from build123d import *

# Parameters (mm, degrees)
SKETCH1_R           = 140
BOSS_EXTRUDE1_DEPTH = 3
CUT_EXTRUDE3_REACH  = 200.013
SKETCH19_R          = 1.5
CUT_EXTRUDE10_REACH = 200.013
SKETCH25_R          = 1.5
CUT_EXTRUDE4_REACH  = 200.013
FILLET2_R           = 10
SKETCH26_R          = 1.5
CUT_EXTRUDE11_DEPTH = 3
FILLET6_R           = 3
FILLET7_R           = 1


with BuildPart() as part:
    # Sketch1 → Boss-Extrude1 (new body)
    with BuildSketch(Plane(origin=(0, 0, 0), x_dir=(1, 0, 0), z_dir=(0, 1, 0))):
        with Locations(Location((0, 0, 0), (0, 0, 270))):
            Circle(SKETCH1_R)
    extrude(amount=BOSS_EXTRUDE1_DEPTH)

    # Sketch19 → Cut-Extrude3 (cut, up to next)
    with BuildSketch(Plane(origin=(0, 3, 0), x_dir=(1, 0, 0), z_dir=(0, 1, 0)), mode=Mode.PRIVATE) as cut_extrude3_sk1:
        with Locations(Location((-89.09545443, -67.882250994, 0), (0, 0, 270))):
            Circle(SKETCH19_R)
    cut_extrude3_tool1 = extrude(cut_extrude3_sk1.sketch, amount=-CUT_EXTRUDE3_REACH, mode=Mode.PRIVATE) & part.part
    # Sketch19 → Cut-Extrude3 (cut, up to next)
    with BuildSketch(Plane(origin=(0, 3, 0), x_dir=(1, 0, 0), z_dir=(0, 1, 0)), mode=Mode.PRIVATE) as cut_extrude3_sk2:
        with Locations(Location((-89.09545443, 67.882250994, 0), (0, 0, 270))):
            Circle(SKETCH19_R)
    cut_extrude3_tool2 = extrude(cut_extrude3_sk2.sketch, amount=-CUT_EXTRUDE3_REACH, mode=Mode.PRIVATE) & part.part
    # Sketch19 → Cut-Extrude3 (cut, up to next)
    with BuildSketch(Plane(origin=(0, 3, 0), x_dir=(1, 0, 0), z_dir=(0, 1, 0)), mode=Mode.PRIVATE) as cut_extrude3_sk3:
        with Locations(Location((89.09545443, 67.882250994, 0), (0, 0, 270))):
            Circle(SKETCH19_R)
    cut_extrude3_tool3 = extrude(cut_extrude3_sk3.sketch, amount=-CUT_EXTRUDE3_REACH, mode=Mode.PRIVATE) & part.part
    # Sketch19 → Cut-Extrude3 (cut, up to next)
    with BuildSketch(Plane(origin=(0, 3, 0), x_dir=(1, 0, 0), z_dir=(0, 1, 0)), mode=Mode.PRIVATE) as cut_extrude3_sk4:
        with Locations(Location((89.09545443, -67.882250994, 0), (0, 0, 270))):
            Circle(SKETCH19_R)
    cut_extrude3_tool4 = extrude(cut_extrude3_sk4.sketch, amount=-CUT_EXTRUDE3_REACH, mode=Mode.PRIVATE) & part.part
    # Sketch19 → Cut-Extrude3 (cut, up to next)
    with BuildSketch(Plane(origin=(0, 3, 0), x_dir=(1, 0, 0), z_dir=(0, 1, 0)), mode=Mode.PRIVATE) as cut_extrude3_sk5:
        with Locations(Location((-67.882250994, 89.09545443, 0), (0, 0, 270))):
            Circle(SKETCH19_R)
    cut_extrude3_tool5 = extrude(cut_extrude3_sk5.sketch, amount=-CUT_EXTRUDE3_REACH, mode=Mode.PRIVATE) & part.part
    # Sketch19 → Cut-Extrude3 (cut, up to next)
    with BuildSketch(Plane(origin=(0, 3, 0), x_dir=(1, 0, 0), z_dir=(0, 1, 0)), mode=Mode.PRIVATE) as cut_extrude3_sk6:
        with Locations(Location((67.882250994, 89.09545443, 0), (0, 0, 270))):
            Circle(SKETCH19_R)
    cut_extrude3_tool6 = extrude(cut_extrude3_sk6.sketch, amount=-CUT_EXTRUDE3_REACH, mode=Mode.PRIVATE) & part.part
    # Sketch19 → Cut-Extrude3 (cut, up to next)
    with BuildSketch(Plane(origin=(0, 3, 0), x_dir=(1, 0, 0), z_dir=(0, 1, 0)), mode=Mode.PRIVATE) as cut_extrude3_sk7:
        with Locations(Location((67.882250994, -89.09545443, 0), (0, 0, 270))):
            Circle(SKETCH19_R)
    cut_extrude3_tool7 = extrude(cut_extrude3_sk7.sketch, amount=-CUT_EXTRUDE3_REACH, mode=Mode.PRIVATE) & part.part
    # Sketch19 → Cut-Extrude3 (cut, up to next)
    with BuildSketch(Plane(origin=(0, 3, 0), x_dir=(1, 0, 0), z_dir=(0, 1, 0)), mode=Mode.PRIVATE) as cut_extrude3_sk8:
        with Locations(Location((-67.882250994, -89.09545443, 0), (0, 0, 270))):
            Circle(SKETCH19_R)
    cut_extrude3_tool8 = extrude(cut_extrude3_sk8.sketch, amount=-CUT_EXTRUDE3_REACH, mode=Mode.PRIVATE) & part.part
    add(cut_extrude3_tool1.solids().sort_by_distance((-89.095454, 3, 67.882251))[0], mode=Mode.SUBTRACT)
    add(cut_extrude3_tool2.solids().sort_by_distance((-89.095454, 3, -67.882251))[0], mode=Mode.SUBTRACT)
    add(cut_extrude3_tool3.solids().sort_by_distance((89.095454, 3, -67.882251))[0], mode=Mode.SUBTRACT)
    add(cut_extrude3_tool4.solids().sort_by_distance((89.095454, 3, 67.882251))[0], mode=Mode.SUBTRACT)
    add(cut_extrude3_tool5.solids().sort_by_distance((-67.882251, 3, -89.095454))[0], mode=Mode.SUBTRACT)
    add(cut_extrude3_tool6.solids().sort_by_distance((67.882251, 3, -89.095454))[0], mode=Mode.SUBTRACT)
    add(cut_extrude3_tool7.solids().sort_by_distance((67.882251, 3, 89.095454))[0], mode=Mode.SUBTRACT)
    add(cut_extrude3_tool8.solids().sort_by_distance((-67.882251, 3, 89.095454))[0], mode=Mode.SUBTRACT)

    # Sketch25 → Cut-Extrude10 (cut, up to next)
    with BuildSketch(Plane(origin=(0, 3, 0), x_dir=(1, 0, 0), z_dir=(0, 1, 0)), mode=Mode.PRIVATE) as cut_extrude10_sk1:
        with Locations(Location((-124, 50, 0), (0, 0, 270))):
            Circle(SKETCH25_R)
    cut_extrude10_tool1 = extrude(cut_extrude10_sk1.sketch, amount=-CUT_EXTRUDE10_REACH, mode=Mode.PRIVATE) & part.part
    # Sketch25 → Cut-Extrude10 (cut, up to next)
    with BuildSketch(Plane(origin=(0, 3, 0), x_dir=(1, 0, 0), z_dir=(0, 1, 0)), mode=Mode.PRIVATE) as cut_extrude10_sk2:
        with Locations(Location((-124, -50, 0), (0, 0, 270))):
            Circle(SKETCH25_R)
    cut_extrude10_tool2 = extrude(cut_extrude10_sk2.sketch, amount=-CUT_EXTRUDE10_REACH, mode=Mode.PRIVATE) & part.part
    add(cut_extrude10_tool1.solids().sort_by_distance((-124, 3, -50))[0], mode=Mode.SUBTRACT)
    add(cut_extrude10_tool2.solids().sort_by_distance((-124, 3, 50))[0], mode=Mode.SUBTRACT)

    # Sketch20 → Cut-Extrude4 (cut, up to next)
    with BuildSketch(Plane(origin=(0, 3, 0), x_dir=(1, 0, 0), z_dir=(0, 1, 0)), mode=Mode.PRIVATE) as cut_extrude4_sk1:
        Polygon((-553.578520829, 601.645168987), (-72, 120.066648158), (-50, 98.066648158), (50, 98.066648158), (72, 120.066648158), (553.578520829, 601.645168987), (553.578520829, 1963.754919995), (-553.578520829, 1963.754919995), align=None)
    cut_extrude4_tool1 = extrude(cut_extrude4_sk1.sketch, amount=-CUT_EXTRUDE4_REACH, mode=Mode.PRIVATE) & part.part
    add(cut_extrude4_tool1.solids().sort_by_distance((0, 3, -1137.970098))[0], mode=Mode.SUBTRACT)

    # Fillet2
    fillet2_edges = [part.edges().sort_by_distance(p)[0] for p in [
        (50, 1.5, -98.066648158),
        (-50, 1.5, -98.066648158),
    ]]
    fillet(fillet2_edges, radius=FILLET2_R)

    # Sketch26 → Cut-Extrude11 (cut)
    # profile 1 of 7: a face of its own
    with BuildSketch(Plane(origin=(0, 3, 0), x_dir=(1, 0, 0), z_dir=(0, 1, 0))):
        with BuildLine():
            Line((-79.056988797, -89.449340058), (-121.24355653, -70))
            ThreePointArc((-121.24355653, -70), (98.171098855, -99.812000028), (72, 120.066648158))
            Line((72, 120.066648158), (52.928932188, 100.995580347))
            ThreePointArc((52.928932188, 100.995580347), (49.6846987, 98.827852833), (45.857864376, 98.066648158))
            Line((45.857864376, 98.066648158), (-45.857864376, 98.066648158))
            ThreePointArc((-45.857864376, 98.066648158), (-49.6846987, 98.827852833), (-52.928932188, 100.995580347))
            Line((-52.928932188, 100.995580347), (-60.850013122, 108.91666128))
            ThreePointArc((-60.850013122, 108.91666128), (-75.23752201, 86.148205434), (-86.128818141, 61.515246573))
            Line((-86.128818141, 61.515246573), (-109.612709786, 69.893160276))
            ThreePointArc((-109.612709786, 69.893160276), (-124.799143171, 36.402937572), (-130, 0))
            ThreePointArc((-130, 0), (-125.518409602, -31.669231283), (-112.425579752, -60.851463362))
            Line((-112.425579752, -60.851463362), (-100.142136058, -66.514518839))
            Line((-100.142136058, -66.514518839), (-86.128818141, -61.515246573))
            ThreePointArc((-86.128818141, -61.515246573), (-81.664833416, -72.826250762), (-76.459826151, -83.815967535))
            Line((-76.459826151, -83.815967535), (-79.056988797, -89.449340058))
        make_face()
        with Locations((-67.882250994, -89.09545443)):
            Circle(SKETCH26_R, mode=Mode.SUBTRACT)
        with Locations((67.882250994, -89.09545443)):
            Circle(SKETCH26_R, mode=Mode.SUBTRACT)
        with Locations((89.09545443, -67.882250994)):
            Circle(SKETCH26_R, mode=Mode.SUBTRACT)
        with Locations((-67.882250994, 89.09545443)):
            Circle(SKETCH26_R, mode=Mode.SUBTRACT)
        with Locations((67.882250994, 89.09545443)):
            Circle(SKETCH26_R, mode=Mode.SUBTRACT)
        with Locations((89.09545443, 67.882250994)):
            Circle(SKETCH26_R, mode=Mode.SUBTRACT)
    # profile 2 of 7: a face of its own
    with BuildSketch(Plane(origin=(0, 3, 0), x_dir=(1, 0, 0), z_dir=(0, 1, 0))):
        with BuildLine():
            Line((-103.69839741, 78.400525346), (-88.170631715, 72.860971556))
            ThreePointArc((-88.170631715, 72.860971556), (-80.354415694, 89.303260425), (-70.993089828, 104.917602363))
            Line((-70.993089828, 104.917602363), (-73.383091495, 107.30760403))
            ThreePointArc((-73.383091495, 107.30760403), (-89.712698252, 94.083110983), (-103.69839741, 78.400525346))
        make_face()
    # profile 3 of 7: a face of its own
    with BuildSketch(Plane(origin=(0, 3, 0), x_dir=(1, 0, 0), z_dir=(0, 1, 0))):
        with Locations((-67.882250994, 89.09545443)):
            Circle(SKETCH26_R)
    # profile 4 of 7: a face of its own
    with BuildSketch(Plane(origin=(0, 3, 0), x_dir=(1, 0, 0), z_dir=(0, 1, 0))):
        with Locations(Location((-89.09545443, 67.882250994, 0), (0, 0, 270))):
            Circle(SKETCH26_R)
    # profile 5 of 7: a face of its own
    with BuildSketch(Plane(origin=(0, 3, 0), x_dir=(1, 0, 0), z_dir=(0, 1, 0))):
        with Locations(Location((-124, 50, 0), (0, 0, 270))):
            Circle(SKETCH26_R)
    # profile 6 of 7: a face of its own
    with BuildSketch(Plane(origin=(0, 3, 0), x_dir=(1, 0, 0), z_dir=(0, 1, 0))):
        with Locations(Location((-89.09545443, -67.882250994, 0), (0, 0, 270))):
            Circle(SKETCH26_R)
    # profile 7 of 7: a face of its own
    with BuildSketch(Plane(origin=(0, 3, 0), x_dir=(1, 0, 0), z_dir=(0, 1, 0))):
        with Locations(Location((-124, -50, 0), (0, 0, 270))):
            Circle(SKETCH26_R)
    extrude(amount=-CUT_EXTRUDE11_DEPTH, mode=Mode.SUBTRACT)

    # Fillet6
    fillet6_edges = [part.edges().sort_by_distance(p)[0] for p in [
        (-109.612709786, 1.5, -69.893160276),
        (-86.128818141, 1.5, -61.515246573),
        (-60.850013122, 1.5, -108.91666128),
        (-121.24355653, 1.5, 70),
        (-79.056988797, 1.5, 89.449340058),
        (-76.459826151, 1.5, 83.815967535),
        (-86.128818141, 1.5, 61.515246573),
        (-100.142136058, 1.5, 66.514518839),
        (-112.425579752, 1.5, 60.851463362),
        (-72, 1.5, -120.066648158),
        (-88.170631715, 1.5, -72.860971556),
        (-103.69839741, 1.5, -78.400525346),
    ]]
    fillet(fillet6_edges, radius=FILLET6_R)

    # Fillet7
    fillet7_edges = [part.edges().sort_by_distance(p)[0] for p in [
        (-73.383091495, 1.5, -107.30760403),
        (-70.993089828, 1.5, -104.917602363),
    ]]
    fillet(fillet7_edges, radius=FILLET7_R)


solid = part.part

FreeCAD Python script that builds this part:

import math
import FreeCAD as App
import Part
import Sketcher


def edges_at(feature, points):
    """Names of the edges that pass closest to the given points."""
    edges = feature.Shape.Edges
    near = lambda p: min(range(len(edges)), key=lambda i: edges[i].distToShape(Part.Vertex(*p))[0])
    return sorted({f"Edge{near(p) + 1}" for p in points})

doc = App.newDocument("Part")
params = doc.addObject("Spreadsheet::Sheet", "Params")
for row, (alias, value) in enumerate([
    ("sketch1_diameter", "280 mm"),
    ("pad1_length", "3 mm"),
    ("sketch2_diameter", "3 mm"),
    ("sketch3_diameter", "3 mm"),
    ("sketch4_diameter", "3 mm"),
    ("sketch5_diameter", "3 mm"),
    ("sketch6_diameter", "3 mm"),
    ("sketch7_diameter", "3 mm"),
    ("sketch8_diameter", "3 mm"),
    ("sketch9_diameter", "3 mm"),
    ("sketch10_diameter", "3 mm"),
    ("sketch11_diameter", "3 mm"),
    ("sketch12_width", "100 mm"),
    ("pocket11_length", "3 mm"),
    ("fillet_radius", "10 mm"),
    ("sketch13_diameter", "3 mm"),
    ("sketch13_radius", "140 mm"),
    ("sketch13_radius2", "10 mm"),
    ("sketch13_radius3", "130 mm"),
    ("pocket12_length", "3 mm"),
    ("fillet2_radius", "3 mm"),
    ("fillet3_radius", "1 mm"),
], start=1):
    params.set(f"A{row}", alias)
    params.set(f"B{row}", "=" + value)
    params.setAlias(f"B{row}", alias)

body = doc.addObject("PartDesign::Body", "Body")

sketch1 = body.newObject("Sketcher::SketchObject", "Sketch")
sketch1.AttachmentSupport = (doc.getObject("XZ_Plane"), [""])
sketch1.MapMode = "FlatFace"
sketch1.addGeometry(Part.Circle(App.Vector(0, 0, 0), App.Vector(0, 0, 1), 140), False)
sketch1.addConstraint(Sketcher.Constraint("Coincident", 0, 3, -1, 1))
sketch1.addConstraint(Sketcher.Constraint("Diameter", 0, 280.0))
sketch1.setExpression("Constraints[1]", "Params.sketch1_diameter")
pad1 = body.newObject("PartDesign::Pad", "Pad")
pad1.Profile = sketch1
pad1.setExpression("Length", "Params.pad1_length")
pad1.Reversed = True

sketch2 = body.newObject("Sketcher::SketchObject", "Sketch001")
sketch2.AttachmentSupport = (doc.getObject("XZ_Plane"), [""])
sketch2.MapMode = "FlatFace"
sketch2.AttachmentOffset = App.Placement(App.Vector(0, 0, -3), App.Rotation())
sketch2.addGeometry(Part.Circle(App.Vector(-89.1, 67.9, 0), App.Vector(0, 0, 1), 1.5), False)
sketch2.addConstraint(Sketcher.Constraint("Diameter", 0, 3.0))
sketch2.addConstraint(Sketcher.Constraint("DistanceY", -1, 1, 0, 3, 67.882251))
sketch2.addConstraint(Sketcher.Constraint("DistanceX", 0, 3, -1, 1, 89.095454))
sketch2.setExpression("Constraints[0]", "Params.sketch2_diameter")
pocket1 = body.newObject("PartDesign::Pocket", "Pocket")
pocket1.Profile = sketch2
pocket1.Type = "UpToFirst"
pocket1.Reversed = True

sketch3 = body.newObject("Sketcher::SketchObject", "Sketch002")
sketch3.AttachmentSupport = (doc.getObject("XZ_Plane"), [""])
sketch3.MapMode = "FlatFace"
sketch3.AttachmentOffset = App.Placement(App.Vector(0, 0, -3), App.Rotation())
sketch3.addGeometry(Part.Circle(App.Vector(-89.1, -67.9, 0), App.Vector(0, 0, 1), 1.5), False)
sketch3.addConstraint(Sketcher.Constraint("Diameter", 0, 3.0))
sketch3.addConstraint(Sketcher.Constraint("DistanceY", 0, 3, -1, 1, 67.882251))
sketch3.addConstraint(Sketcher.Constraint("DistanceX", 0, 3, -1, 1, 89.095454))
sketch3.setExpression("Constraints[0]", "Params.sketch3_diameter")
pocket2 = body.newObject("PartDesign::Pocket", "Pocket001")
pocket2.Profile = sketch3
pocket2.Type = "UpToFirst"
pocket2.Reversed = True

sketch4 = body.newObject("Sketcher::SketchObject", "Sketch003")
sketch4.AttachmentSupport = (doc.getObject("XZ_Plane"), [""])
sketch4.MapMode = "FlatFace"
sketch4.AttachmentOffset = App.Placement(App.Vector(0, 0, -3), App.Rotation())
sketch4.addGeometry(Part.Circle(App.Vector(89.1, -67.9, 0), App.Vector(0, 0, 1), 1.5), False)
sketch4.addConstraint(Sketcher.Constraint("Diameter", 0, 3.0))
sketch4.addConstraint(Sketcher.Constraint("DistanceY", 0, 3, -1, 1, 67.882251))
sketch4.addConstraint(Sketcher.Constraint("DistanceX", -1, 1, 0, 3, 89.095454))
sketch4.setExpression("Constraints[0]", "Params.sketch4_diameter")
pocket3 = body.newObject("PartDesign::Pocket", "Pocket002")
pocket3.Profile = sketch4
pocket3.Type = "UpToFirst"
pocket3.Reversed = True

sketch5 = body.newObject("Sketcher::SketchObject", "Sketch004")
sketch5.AttachmentSupport = (doc.getObject("XZ_Plane"), [""])
sketch5.MapMode = "FlatFace"
sketch5.AttachmentOffset = App.Placement(App.Vector(0, 0, -3), App.Rotation())
sketch5.addGeometry(Part.Circle(App.Vector(89.1, 67.9, 0), App.Vector(0, 0, 1), 1.5), False)
sketch5.addConstraint(Sketcher.Constraint("Diameter", 0, 3.0))
sketch5.addConstraint(Sketcher.Constraint("DistanceY", -1, 1, 0, 3, 67.882251))
sketch5.addConstraint(Sketcher.Constraint("DistanceX", -1, 1, 0, 3, 89.095454))
sketch5.setExpression("Constraints[0]", "Params.sketch5_diameter")
pocket4 = body.newObject("PartDesign::Pocket", "Pocket003")
pocket4.Profile = sketch5
pocket4.Type = "UpToFirst"
pocket4.Reversed = True

sketch6 = body.newObject("Sketcher::SketchObject", "Sketch005")
sketch6.AttachmentSupport = (doc.getObject("XZ_Plane"), [""])
sketch6.MapMode = "FlatFace"
sketch6.AttachmentOffset = App.Placement(App.Vector(0, 0, -3), App.Rotation())
sketch6.addGeometry(Part.Circle(App.Vector(-67.9, -89.1, 0), App.Vector(0, 0, 1), 1.5), False)
sketch6.addConstraint(Sketcher.Constraint("Diameter", 0, 3.0))
sketch6.addConstraint(Sketcher.Constraint("DistanceX", 0, 3, -1, 1, 67.882251))
sketch6.addConstraint(Sketcher.Constraint("DistanceY", 0, 3, -1, 1, 89.095454))
sketch6.setExpression("Constraints[0]", "Params.sketch6_diameter")
pocket5 = body.newObject("PartDesign::Pocket", "Pocket004")
pocket5.Profile = sketch6
pocket5.Type = "UpToFirst"
pocket5.Reversed = True

sketch7 = body.newObject("Sketcher::SketchObject", "Sketch006")
sketch7.AttachmentSupport = (doc.getObject("XZ_Plane"), [""])
sketch7.MapMode = "FlatFace"
sketch7.AttachmentOffset = App.Placement(App.Vector(0, 0, -3), App.Rotation())
sketch7.addGeometry(Part.Circle(App.Vector(67.9, -89.1, 0), App.Vector(0, 0, 1), 1.5), False)
sketch7.addConstraint(Sketcher.Constraint("Diameter", 0, 3.0))
sketch7.addConstraint(Sketcher.Constraint("DistanceX", -1, 1, 0, 3, 67.882251))
sketch7.addConstraint(Sketcher.Constraint("DistanceY", 0, 3, -1, 1, 89.095454))
sketch7.setExpression("Constraints[0]", "Params.sketch7_diameter")
pocket6 = body.newObject("PartDesign::Pocket", "Pocket005")
pocket6.Profile = sketch7
pocket6.Type = "UpToFirst"
pocket6.Reversed = True

sketch8 = body.newObject("Sketcher::SketchObject", "Sketch007")
sketch8.AttachmentSupport = (doc.getObject("XZ_Plane"), [""])
sketch8.MapMode = "FlatFace"
sketch8.AttachmentOffset = App.Placement(App.Vector(0, 0, -3), App.Rotation())
sketch8.addGeometry(Part.Circle(App.Vector(67.9, 89.1, 0), App.Vector(0, 0, 1), 1.5), False)
sketch8.addConstraint(Sketcher.Constraint("Diameter", 0, 3.0))
sketch8.addConstraint(Sketcher.Constraint("DistanceX", -1, 1, 0, 3, 67.882251))
sketch8.addConstraint(Sketcher.Constraint("DistanceY", -1, 1, 0, 3, 89.095454))
sketch8.setExpression("Constraints[0]", "Params.sketch8_diameter")
pocket7 = body.newObject("PartDesign::Pocket", "Pocket006")
pocket7.Profile = sketch8
pocket7.Type = "UpToFirst"
pocket7.Reversed = True

sketch9 = body.newObject("Sketcher::SketchObject", "Sketch008")
sketch9.AttachmentSupport = (doc.getObject("XZ_Plane"), [""])
sketch9.MapMode = "FlatFace"
sketch9.AttachmentOffset = App.Placement(App.Vector(0, 0, -3), App.Rotation())
sketch9.addGeometry(Part.Circle(App.Vector(-67.9, 89.1, 0), App.Vector(0, 0, 1), 1.5), False)
sketch9.addConstraint(Sketcher.Constraint("Diameter", 0, 3.0))
sketch9.addConstraint(Sketcher.Constraint("DistanceX", 0, 3, -1, 1, 67.882251))
sketch9.addConstraint(Sketcher.Constraint("DistanceY", -1, 1, 0, 3, 89.095454))
sketch9.setExpression("Constraints[0]", "Params.sketch9_diameter")
pocket8 = body.newObject("PartDesign::Pocket", "Pocket007")
pocket8.Profile = sketch9
pocket8.Type = "UpToFirst"
pocket8.Reversed = True

sketch10 = body.newObject("Sketcher::SketchObject", "Sketch009")
sketch10.AttachmentSupport = (doc.getObject("XZ_Plane"), [""])
sketch10.MapMode = "FlatFace"
sketch10.AttachmentOffset = App.Placement(App.Vector(0, 0, -3), App.Rotation())
sketch10.addGeometry(Part.Circle(App.Vector(-124, -50, 0), App.Vector(0, 0, 1), 1.5), False)
sketch10.addConstraint(Sketcher.Constraint("Diameter", 0, 3.0))
sketch10.addConstraint(Sketcher.Constraint("DistanceX", 0, 3, -1, 1, 124.0))
sketch10.addConstraint(Sketcher.Constraint("DistanceY", 0, 3, -1, 1, 50.0))
sketch10.setExpression("Constraints[0]", "Params.sketch10_diameter")
pocket9 = body.newObject("PartDesign::Pocket", "Pocket008")
pocket9.Profile = sketch10
pocket9.Type = "UpToFirst"
pocket9.Reversed = True

sketch11 = body.newObject("Sketcher::SketchObject", "Sketch010")
sketch11.AttachmentSupport = (doc.getObject("XZ_Plane"), [""])
sketch11.MapMode = "FlatFace"
sketch11.AttachmentOffset = App.Placement(App.Vector(0, 0, -3), App.Rotation())
sketch11.addGeometry(Part.Circle(App.Vector(-124, 50, 0), App.Vector(0, 0, 1), 1.5), False)
sketch11.addConstraint(Sketcher.Constraint("Diameter", 0, 3.0))
sketch11.addConstraint(Sketcher.Constraint("DistanceX", 0, 3, -1, 1, 124.0))
sketch11.addConstraint(Sketcher.Constraint("DistanceY", -1, 1, 0, 3, 50.0))
sketch11.setExpression("Constraints[0]", "Params.sketch11_diameter")
pocket10 = body.newObject("PartDesign::Pocket", "Pocket009")
pocket10.Profile = sketch11
pocket10.Type = "UpToFirst"
pocket10.Reversed = True

sketch12 = body.newObject("Sketcher::SketchObject", "Sketch011")
sketch12.AttachmentSupport = (doc.getObject("XZ_Plane"), [""])
sketch12.MapMode = "FlatFace"
sketch12.AttachmentOffset = App.Placement(App.Vector(0, 0, -3), App.Rotation())
sketch12.addGeometry(Part.LineSegment(App.Vector(-554, -602, 0), App.Vector(-50, -98, 0)), False)
sketch12.addGeometry(Part.LineSegment(App.Vector(-50, -98, 0), App.Vector(50, -98, 0)), False)
sketch12.addGeometry(Part.LineSegment(App.Vector(50, -98, 0), App.Vector(554, -602, 0)), False)
sketch12.addGeometry(Part.LineSegment(App.Vector(554, -602, 0), App.Vector(554, -1964, 0)), False)
sketch12.addGeometry(Part.LineSegment(App.Vector(554, -1964, 0), App.Vector(-554, -1964, 0)), False)
sketch12.addGeometry(Part.LineSegment(App.Vector(-554, -1964, 0), App.Vector(-554, -602, 0)), False)
sketch12.addConstraint(Sketcher.Constraint("Coincident", 0, 2, 1, 1))
sketch12.addConstraint(Sketcher.Constraint("Coincident", 1, 2, 2, 1))
sketch12.addConstraint(Sketcher.Constraint("Coincident", 2, 2, 3, 1))
sketch12.addConstraint(Sketcher.Constraint("Coincident", 3, 2, 4, 1))
sketch12.addConstraint(Sketcher.Constraint("Coincident", 4, 2, 5, 1))
sketch12.addConstraint(Sketcher.Constraint("Coincident", 5, 2, 0, 1))
sketch12.addConstraint(Sketcher.Constraint("Horizontal", 1))
sketch12.addConstraint(Sketcher.Constraint("Vertical", 3))
sketch12.addConstraint(Sketcher.Constraint("Horizontal", 4))
sketch12.addConstraint(Sketcher.Constraint("Vertical", 5))
sketch12.addConstraint(Sketcher.Constraint("Symmetric", 2, 2, 5, 2, -2))
sketch12.addConstraint(Sketcher.Constraint("Perpendicular", 0, 2))
sketch12.addConstraint(Sketcher.Constraint("Equal", 0, 2))
sketch12.addConstraint(Sketcher.Constraint("DistanceX", 1, 1, 1, 2, 100.0))
sketch12.addConstraint(Sketcher.Constraint("DistanceX", 4, 2, 4, 1, 1107.157042))
sketch12.addConstraint(Sketcher.Constraint("DistanceY", 3, 2, 3, 1, 1362.109751))
sketch12.addConstraint(Sketcher.Constraint("DistanceY", 0, 2, -1, 1, 98.066648))
sketch12.setExpression("Constraints[13]", "Params.sketch12_width")
pocket11 = body.newObject("PartDesign::Pocket", "Pocket010")
pocket11.Profile = sketch12
pocket11.setExpression("Length", "Params.pocket11_length")
pocket11.Reversed = True
doc.recompute()

fillet = body.newObject("PartDesign::Fillet", "Fillet")
fillet.Base = (pocket11, edges_at(pocket11, [(50, 1.5, -98.067), (-50, 1.5, -98.067)]))
fillet.setExpression("Radius", "Params.fillet_radius")

sketch13 = body.newObject("Sketcher::SketchObject", "Sketch012")
sketch13.AttachmentSupport = (doc.getObject("XZ_Plane"), [""])
sketch13.MapMode = "FlatFace"
sketch13.AttachmentOffset = App.Placement(App.Vector(0, 0, -3), App.Rotation())
sketch13.addGeometry(Part.LineSegment(App.Vector(-79.1, 89.4, 0), App.Vector(-121.2, 70, 0)), False)
sketch13.addGeometry(Part.ArcOfCircle(Part.Circle(App.Vector(0, 0, 0), App.Vector(0, 0, 1), 140), math.radians(-59), math.radians(150)), False)
sketch13.addGeometry(Part.LineSegment(App.Vector(72, -120.1, 0), App.Vector(52.9, -101, 0)), False)
sketch13.addGeometry(Part.ArcOfCircle(Part.Circle(App.Vector(45.9, -108.1, 0), App.Vector(0, 0, 1), 10), math.radians(45), math.radians(90)), False)
sketch13.addGeometry(Part.LineSegment(App.Vector(45.9, -98.1, 0), App.Vector(-45.9, -98.1, 0)), False)
sketch13.addGeometry(Part.ArcOfCircle(Part.Circle(App.Vector(-45.9, -108.1, 0), App.Vector(0, 0, 1), 10), math.radians(90), math.radians(135)), False)
sketch13.addGeometry(Part.LineSegment(App.Vector(-52.9, -101, 0), App.Vector(-60.9, -108.9, 0)), False)
sketch13.addGeometry(Part.ArcOfCircle(Part.Circle(App.Vector(86.3, 0, 0), App.Vector(0, 0, 1), 183.1), math.radians(-160.37), math.radians(-143.49)), False)
sketch13.addGeometry(Part.LineSegment(App.Vector(-86.1, -61.5, 0), App.Vector(-109.6, -69.9, 0)), False)
sketch13.addGeometry(Part.ArcOfCircle(Part.Circle(App.Vector(0, 0, 0), App.Vector(0, 0, 1), 130), math.radians(180), math.radians(213)), False)
sketch13.addGeometry(Part.ArcOfCircle(Part.Circle(App.Vector(-15.9, 0, 0), App.Vector(0, 0, 1), 114.1), math.radians(148), math.radians(180)), False)
sketch13.addGeometry(Part.LineSegment(App.Vector(-112.4, 60.9, 0), App.Vector(-100.1, 66.5, 0)), False)
sketch13.addGeometry(Part.LineSegment(App.Vector(-100.1, 66.5, 0), App.Vector(-86.1, 61.5, 0)), False)
sketch13.addGeometry(Part.ArcOfCircle(Part.Circle(App.Vector(86.3, 0, 0), App.Vector(0, 0, 1), 183.1), math.radians(152.75), math.radians(160.37)), False)
sketch13.addGeometry(Part.LineSegment(App.Vector(-76.5, 83.8, 0), App.Vector(-79.1, 89.4, 0)), False)
sketch13.addGeometry(Part.Circle(App.Vector(-67.9, 89.1, 0), App.Vector(0, 0, 1), 1.5), False)
sketch13.addGeometry(Part.Circle(App.Vector(67.9, 89.1, 0), App.Vector(0, 0, 1), 1.5), False)
sketch13.addGeometry(Part.Circle(App.Vector(89.1, 67.9, 0), App.Vector(0, 0, 1), 1.5), False)
sketch13.addGeometry(Part.Circle(App.Vector(89.1, -67.9, 0), App.Vector(0, 0, 1), 1.5), False)
sketch13.addGeometry(Part.Circle(App.Vector(67.9, -89.1, 0), App.Vector(0, 0, 1), 1.5), False)
sketch13.addGeometry(Part.LineSegment(App.Vector(-103.7, -78.4, 0), App.Vector(-88.2, -72.9, 0)), False)
sketch13.addGeometry(Part.ArcOfCircle(Part.Circle(App.Vector(86.3, 0, 0), App.Vector(0, 0, 1), 189.1), math.radians(-157.33), math.radians(-146.3)), False)
sketch13.addGeometry(Part.LineSegment(App.Vector(-71, -104.9, 0), App.Vector(-73.4, -107.3, 0)), False)
sketch13.addGeometry(Part.ArcOfCircle(Part.Circle(App.Vector(0, 0, 0), App.Vector(0, 0, 1), 130), math.radians(-142.91), math.radians(-124.37)), False)
sketch13.addGeometry(Part.Circle(App.Vector(-89.1, -67.9, 0), App.Vector(0, 0, 1), 1.5), False)
sketch13.addGeometry(Part.Circle(App.Vector(-124, -50, 0), App.Vector(0, 0, 1), 1.5), False)
sketch13.addGeometry(Part.Circle(App.Vector(-89.1, 67.9, 0), App.Vector(0, 0, 1), 1.5), False)
sketch13.addGeometry(Part.Circle(App.Vector(-124, 50, 0), App.Vector(0, 0, 1), 1.5), False)
sketch13.addConstraint(Sketcher.Constraint("Coincident", 0, 2, 1, 2))
sketch13.addConstraint(Sketcher.Constraint("Coincident", 1, 1, 2, 1))
sketch13.addConstraint(Sketcher.Constraint("Tangent", 2, 2, 3, 1))
sketch13.addConstraint(Sketcher.Constraint("Tangent", 3, 2, 4, 1))
sketch13.addConstraint(Sketcher.Constraint("Tangent", 4, 2, 5, 1))
sketch13.addConstraint(Sketcher.Constraint("Tangent", 5, 2, 6, 1))
sketch13.addConstraint(Sketcher.Constraint("Coincident", 6, 2, 7, 2))
sketch13.addConstraint(Sketcher.Constraint("Coincident", 7, 1, 8, 1))
sketch13.addConstraint(Sketcher.Constraint("Coincident", 8, 2, 9, 2))
sketch13.addConstraint(Sketcher.Constraint("Tangent", 9, 1, 10, 2))
sketch13.addConstraint(Sketcher.Constraint("Coincident", 10, 1, 11, 1))
sketch13.addConstraint(Sketcher.Constraint("Coincident", 11, 2, 12, 1))
sketch13.addConstraint(Sketcher.Constraint("Coincident", 12, 2, 13, 2))
sketch13.addConstraint(Sketcher.Constraint("Coincident", 13, 1, 14, 1))
sketch13.addConstraint(Sketcher.Constraint("Coincident", 14, 2, 0, 1))
sketch13.addConstraint(Sketcher.Constraint("Coincident", 20, 2, 21, 1))
sketch13.addConstraint(Sketcher.Constraint("Coincident", 21, 2, 22, 1))
sketch13.addConstraint(Sketcher.Constraint("Coincident", 22, 2, 23, 2))
sketch13.addConstraint(Sketcher.Constraint("Coincident", 23, 1, 20, 1))
sketch13.addConstraint(Sketcher.Constraint("Horizontal", 4))
sketch13.addConstraint(Sketcher.Constraint("Coincident", 1, 3, -1, 1))
sketch13.addConstraint(Sketcher.Constraint("Coincident", 9, 3, -1, 1))
sketch13.addConstraint(Sketcher.Constraint("Coincident", 23, 3, -1, 1))
sketch13.addConstraint(Sketcher.Constraint("Coincident", 13, 3, 7, 3))
sketch13.addConstraint(Sketcher.Constraint("Coincident", 21, 3, 7, 3))
sketch13.addConstraint(Sketcher.Constraint("Equal", 3, 5))
sketch13.addConstraint(Sketcher.Constraint("Equal", 7, 13))
sketch13.addConstraint(Sketcher.Constraint("Equal", 15, 16))
sketch13.addConstraint(Sketcher.Constraint("Equal", 16, 17))
sketch13.addConstraint(Sketcher.Constraint("Equal", 17, 18))
sketch13.addConstraint(Sketcher.Constraint("Equal", 18, 19))
sketch13.addConstraint(Sketcher.Constraint("Equal", 9, 23))
sketch13.addConstraint(Sketcher.Constraint("Equal", 19, 24))
sketch13.addConstraint(Sketcher.Constraint("Equal", 24, 25))
sketch13.addConstraint(Sketcher.Constraint("Equal", 25, 26))
sketch13.addConstraint(Sketcher.Constraint("Equal", 26, 27))
sketch13.addConstraint(Sketcher.Constraint("Symmetric", 15, 3, 19, 3, -1, 1))
sketch13.addConstraint(Sketcher.Constraint("Symmetric", 17, 3, 24, 3, -1, 1))
sketch13.addConstraint(Sketcher.Constraint("Symmetric", 18, 3, 26, 3, -1, 1))
sketch13.addConstraint(Sketcher.Constraint("Symmetric", 15, 3, 16, 3, -2))
sketch13.addConstraint(Sketcher.Constraint("Symmetric", 18, 3, 24, 3, -2))
sketch13.addConstraint(Sketcher.Constraint("Symmetric", 2, 2, 5, 2, -2))
sketch13.addConstraint(Sketcher.Constraint("Symmetric", 25, 3, 27, 3, -1))
sketch13.addConstraint(Sketcher.Constraint("Symmetric", 7, 1, 12, 2, -1))
sketch13.addConstraint(Sketcher.Constraint("PointOnObject", 10, 3, -1))
sketch13.addConstraint(Sketcher.Constraint("Perpendicular", 2, 6))
sketch13.addConstraint(Sketcher.Constraint("Parallel", 0, 11))
sketch13.addConstraint(Sketcher.Constraint("Perpendicular", 11, 14))
sketch13.addConstraint(Sketcher.Constraint("Parallel", 8, 20))
sketch13.addConstraint(Sketcher.Constraint("Parallel", 6, 22))
sketch13.addConstraint(Sketcher.Constraint("Diameter", 15, 3.0))
sketch13.addConstraint(Sketcher.Constraint("Radius", 1, 140.0))
sketch13.addConstraint(Sketcher.Constraint("Radius", 3, 10.0))
sketch13.addConstraint(Sketcher.Constraint("Radius", 9, 130.0))
sketch13.addConstraint(Sketcher.Constraint("DistanceX", 25, 3, -1, 1, 124.0))
sketch13.addConstraint(Sketcher.Constraint("DistanceY", 25, 3, -1, 1, 50.0))
sketch13.addConstraint(Sketcher.Constraint("DistanceY", -1, 1, 0, 2, 70.0))
sketch13.addConstraint(Sketcher.Constraint("DistanceX", -1, 1, 1, 1, 72.0))
sketch13.addConstraint(Sketcher.Constraint("DistanceY", 1, 1, 3, 3, 12.0))
sketch13.addConstraint(Sketcher.Constraint("Radius", 7, 183.075928))
sketch13.addConstraint(Sketcher.Constraint("Radius", 21, 189.075928))
sketch13.addConstraint(Sketcher.Constraint("DistanceX", 22, 2, 21, 2, 2.390002))
sketch13.addConstraint(Sketcher.Constraint("Radius", 10, 114.136364))
sketch13.addConstraint(Sketcher.Constraint("Distance", 0, 46.454099))
sketch13.addConstraint(Sketcher.Constraint("Distance", 6, 11.2021))
sketch13.addConstraint(Sketcher.Constraint("DistanceY", 4, 2, 7, 1, 36.551402))
sketch13.addConstraint(Sketcher.Constraint("DistanceY", 6, 2, 8, 2, 39.023501))
sketch13.addConstraint(Sketcher.Constraint("DistanceX", 20, 2, 5, 2, 35.2417))
sketch13.addConstraint(Sketcher.Constraint("Distance", 11, 13.526019))
sketch13.addConstraint(Sketcher.Constraint("DistanceX", 15, 3, -1, 1, 67.882251))
sketch13.addConstraint(Sketcher.Constraint("DistanceY", -1, 1, 17, 3, 67.882251))
sketch13.addConstraint(Sketcher.Constraint("DistanceX", 10, 1, -1, 1, 112.42558))
sketch13.addConstraint(Sketcher.Constraint("DistanceY", -1, 1, 11, 2, 66.514519))
sketch13.addConstraint(Sketcher.Constraint("DistanceX", 3, 3, 18, 3, 43.23759))
sketch13.addConstraint(Sketcher.Constraint("DistanceY", 10, 1, 15, 3, 28.243991))
sketch13.setExpression("Constraints[50]", "Params.sketch13_diameter")
sketch13.setExpression("Constraints[51]", "Params.sketch13_radius")
sketch13.setExpression("Constraints[52]", "Params.sketch13_radius2")
sketch13.setExpression("Constraints[53]", "Params.sketch13_radius3")
pocket12 = body.newObject("PartDesign::Pocket", "Pocket011")
pocket12.Profile = sketch13
pocket12.setExpression("Length", "Params.pocket12_length")
pocket12.Reversed = True
doc.recompute()

fillet2 = body.newObject("PartDesign::Fillet", "Fillet001")
fillet2.Base = (pocket12, edges_at(pocket12, [
    (-109.613, 1.5, -69.893),
    (-86.129, 1.5, -61.515),
    (-60.85, 1.5, -108.917),
    (-121.244, 1.5, 70),
    (-79.057, 1.5, 89.449),
    (-76.46, 1.5, 83.816),
    (-86.129, 1.5, 61.515),
    (-100.142, 1.5, 66.515),
    (-112.426, 1.5, 60.851),
    (-72, 1.5, -120.067),
    (-88.171, 1.5, -72.861),
    (-103.698, 1.5, -78.401),
]))
fillet2.setExpression("Radius", "Params.fillet2_radius")
doc.recompute()

fillet3 = body.newObject("PartDesign::Fillet", "Fillet002")
fillet3.Base = (fillet2, edges_at(fillet2, [(-73.383, 1.5, -107.308), (-70.993, 1.5, -104.918)]))
fillet3.setExpression("Radius", "Params.fillet3_radius")

doc.recompute()
